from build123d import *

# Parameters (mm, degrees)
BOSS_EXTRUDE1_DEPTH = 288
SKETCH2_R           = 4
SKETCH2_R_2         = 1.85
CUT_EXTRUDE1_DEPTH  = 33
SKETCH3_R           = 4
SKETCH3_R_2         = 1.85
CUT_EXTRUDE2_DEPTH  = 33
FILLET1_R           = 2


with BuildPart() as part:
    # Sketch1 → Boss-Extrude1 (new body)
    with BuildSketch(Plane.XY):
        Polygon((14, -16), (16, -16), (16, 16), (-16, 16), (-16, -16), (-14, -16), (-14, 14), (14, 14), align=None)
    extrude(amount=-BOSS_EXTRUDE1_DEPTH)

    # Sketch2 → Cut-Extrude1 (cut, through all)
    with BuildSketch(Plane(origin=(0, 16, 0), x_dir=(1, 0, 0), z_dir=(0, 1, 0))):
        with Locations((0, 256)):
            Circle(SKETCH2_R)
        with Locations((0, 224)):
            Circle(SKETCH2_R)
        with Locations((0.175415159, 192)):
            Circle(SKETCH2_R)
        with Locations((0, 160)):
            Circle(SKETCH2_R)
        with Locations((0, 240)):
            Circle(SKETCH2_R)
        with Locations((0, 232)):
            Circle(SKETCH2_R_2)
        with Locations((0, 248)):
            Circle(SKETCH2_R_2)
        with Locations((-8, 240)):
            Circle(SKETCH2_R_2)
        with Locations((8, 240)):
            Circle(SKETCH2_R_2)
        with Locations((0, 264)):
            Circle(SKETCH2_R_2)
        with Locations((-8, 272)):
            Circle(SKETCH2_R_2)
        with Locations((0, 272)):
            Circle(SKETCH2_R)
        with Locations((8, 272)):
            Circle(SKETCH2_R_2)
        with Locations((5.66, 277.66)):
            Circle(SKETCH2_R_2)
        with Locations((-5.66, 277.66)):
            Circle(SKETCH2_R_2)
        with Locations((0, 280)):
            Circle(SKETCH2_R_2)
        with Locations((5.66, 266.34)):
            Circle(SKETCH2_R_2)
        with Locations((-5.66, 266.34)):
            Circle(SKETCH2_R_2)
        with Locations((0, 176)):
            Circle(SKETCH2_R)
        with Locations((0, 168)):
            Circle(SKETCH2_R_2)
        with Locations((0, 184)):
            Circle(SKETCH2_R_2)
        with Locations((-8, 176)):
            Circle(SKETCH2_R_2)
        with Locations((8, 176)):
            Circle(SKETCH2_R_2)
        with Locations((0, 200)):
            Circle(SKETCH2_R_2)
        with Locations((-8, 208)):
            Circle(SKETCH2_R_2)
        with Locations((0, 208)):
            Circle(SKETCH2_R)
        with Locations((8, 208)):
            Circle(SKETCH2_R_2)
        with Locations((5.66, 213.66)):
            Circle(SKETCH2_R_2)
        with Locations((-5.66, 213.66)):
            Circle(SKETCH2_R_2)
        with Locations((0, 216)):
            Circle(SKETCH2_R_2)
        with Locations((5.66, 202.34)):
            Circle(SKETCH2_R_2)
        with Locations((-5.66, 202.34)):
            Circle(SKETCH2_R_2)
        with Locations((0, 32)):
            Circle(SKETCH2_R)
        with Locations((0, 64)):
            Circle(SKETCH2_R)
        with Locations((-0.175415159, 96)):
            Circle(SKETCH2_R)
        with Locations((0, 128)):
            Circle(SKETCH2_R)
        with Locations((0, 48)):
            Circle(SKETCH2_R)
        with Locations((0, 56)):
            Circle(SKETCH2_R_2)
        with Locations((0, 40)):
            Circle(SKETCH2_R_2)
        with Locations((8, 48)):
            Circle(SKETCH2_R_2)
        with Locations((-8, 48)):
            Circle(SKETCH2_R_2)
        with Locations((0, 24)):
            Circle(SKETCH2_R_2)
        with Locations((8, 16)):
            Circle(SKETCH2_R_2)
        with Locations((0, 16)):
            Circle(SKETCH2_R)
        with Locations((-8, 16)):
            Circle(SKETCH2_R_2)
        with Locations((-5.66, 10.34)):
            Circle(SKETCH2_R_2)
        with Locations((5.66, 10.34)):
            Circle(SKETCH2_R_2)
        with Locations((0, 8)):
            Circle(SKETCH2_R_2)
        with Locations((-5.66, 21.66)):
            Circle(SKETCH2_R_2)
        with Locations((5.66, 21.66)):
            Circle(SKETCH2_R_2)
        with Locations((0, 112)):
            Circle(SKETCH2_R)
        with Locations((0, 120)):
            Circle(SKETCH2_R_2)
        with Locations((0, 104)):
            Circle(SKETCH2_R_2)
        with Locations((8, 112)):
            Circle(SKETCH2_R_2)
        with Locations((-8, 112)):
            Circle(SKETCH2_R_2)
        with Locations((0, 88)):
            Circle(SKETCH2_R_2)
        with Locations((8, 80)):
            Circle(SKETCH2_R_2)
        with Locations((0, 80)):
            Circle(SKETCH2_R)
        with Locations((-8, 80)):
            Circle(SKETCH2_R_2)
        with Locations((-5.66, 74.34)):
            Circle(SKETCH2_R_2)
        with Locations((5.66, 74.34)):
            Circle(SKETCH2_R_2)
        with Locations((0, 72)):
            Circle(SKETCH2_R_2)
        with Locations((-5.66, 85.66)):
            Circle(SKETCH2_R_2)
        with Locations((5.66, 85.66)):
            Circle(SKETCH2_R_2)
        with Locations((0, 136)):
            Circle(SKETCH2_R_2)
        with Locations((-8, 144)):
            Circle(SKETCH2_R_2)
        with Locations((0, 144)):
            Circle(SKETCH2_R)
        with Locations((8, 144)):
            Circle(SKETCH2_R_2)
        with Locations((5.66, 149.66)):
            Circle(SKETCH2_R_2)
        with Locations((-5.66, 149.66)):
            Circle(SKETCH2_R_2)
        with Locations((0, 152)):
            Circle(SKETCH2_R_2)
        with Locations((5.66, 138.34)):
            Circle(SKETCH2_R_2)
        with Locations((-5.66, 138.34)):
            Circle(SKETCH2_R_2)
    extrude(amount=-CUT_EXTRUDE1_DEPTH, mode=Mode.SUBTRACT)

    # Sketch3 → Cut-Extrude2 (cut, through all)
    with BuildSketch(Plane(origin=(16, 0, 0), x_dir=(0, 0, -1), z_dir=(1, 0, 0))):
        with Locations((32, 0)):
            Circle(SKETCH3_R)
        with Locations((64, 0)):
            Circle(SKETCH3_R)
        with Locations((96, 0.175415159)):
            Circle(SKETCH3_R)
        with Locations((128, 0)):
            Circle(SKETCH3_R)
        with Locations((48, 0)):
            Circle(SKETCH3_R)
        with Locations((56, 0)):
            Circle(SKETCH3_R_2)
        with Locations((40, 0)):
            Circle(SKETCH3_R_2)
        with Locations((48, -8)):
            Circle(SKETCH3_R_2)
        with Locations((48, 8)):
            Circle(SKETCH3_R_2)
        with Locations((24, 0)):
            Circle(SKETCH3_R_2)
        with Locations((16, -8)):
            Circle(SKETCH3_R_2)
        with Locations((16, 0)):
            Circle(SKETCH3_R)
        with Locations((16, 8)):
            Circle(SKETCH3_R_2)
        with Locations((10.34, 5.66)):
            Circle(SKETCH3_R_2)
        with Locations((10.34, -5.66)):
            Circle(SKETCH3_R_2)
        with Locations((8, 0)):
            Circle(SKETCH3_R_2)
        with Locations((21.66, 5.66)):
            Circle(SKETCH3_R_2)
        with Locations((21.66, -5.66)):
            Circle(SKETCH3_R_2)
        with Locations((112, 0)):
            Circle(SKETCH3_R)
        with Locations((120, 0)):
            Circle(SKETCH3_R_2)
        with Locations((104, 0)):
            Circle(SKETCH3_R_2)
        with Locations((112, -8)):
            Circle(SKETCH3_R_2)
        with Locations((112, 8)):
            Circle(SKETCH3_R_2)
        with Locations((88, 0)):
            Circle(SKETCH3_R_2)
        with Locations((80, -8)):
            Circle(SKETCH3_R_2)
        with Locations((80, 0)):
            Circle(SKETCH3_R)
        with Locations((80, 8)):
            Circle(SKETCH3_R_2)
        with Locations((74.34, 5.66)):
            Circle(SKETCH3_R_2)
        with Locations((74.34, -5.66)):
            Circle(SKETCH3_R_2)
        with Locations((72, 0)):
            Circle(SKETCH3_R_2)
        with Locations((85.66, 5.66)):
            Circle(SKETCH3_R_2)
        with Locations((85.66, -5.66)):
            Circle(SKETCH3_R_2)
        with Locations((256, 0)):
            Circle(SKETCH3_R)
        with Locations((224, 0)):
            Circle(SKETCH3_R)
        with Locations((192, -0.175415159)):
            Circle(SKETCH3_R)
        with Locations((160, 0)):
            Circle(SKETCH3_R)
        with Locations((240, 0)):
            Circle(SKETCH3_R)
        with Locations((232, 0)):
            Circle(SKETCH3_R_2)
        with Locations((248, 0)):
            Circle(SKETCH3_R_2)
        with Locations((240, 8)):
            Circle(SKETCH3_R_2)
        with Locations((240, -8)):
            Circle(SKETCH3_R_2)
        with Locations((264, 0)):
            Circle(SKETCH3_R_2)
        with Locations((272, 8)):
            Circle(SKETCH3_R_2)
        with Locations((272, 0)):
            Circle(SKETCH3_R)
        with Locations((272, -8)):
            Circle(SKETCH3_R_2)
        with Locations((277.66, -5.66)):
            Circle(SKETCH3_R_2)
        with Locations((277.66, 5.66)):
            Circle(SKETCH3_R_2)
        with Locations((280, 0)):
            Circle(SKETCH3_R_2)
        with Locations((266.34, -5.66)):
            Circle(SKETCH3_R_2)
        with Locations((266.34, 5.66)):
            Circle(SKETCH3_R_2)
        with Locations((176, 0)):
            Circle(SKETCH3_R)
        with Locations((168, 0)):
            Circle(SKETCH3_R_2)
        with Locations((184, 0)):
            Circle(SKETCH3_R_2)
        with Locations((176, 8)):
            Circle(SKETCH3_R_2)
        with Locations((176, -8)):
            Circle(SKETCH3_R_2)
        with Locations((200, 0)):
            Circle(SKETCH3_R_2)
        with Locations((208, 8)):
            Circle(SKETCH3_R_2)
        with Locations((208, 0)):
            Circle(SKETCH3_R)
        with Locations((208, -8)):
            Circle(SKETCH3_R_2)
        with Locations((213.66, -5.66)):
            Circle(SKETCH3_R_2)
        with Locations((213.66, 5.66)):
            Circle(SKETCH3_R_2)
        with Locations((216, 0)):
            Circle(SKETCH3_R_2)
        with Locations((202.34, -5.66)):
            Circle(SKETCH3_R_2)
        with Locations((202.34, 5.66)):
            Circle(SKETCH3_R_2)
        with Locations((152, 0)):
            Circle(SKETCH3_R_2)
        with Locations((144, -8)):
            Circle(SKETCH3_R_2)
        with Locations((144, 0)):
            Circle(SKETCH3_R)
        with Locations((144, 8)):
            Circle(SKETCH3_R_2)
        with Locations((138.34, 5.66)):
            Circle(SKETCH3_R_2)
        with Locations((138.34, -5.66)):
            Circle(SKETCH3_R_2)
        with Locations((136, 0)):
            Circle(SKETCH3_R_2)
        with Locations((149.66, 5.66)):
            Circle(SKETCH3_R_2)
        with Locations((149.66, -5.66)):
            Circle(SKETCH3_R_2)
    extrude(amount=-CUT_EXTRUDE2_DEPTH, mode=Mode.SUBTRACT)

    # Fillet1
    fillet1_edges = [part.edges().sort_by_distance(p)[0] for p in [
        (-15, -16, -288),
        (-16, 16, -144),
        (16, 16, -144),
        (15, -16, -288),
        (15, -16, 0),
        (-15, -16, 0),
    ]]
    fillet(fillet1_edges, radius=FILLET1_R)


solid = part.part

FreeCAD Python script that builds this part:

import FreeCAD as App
import Part
import Sketcher
from FreeCAD import Vector


def edges_at(feature, points):
    """Names of the edges that pass closest to the given points."""
    edges = feature.Shape.Edges
    near = lambda p: min(range(len(edges)), key=lambda i: edges[i].distToShape(Part.Vertex(*p))[0])
    return sorted({f"Edge{near(p) + 1}" for p in points})


def add_polygon(sketch, points):
    """Adds a closed chain of lines whose ends are joined by coincident constraints."""
    first, n = sketch.GeometryCount, len(points)
    for a, b in zip(points, points[1:] + points[:1]):
        sketch.addGeometry(Part.LineSegment(App.Vector(*a, 0), App.Vector(*b, 0)), False)
    for i in range(n):
        sketch.addConstraint(Sketcher.Constraint("Coincident", first + i, 2, first + (i + 1) % n, 1))

doc = App.newDocument("Part")
body = doc.addObject("PartDesign::Body", "Body")

# Sketch on XY plane
sketch1 = body.newObject("Sketcher::SketchObject", "Sketch")
sketch1.AttachmentSupport = (doc.getObject("XY_Plane"), [""])
sketch1.MapMode = "FlatFace"
add_polygon(sketch1, [(14, -16), (16, -16), (16, 16), (-16, 16), (-16, -16), (-14, -16), (-14, 14), (14, 14)])  # lines 0-7
sketch1.addConstraint(Sketcher.Constraint("Horizontal", 0))
sketch1.addConstraint(Sketcher.Constraint("Vertical", 1))
sketch1.addConstraint(Sketcher.Constraint("Horizontal", 2))
sketch1.addConstraint(Sketcher.Constraint("Vertical", 3))
sketch1.addConstraint(Sketcher.Constraint("Horizontal", 4))
sketch1.addConstraint(Sketcher.Constraint("Vertical", 5))
sketch1.addConstraint(Sketcher.Constraint("Horizontal", 6))
sketch1.addConstraint(Sketcher.Constraint("Vertical", 7))
sketch1.addConstraint(Sketcher.Constraint("Symmetric", 0, 2, 2, 2, -1, 1))
sketch1.addConstraint(Sketcher.Constraint("Symmetric", 4, 2, 7, 2, -2))
sketch1.addConstraint(Sketcher.Constraint("Equal", 2, 1))
sketch1.addConstraint(Sketcher.Constraint("DistanceX", 0, 1, 0, 2, 2.0))
sketch1.addConstraint(Sketcher.Constraint("DistanceX", 2, 2, 2, 1, 32.0))
sketch1.addConstraint(Sketcher.Constraint("DistanceY", 5, 1, 5, 2, 30.0))
pad1 = body.newObject("PartDesign::Pad", "Pad")
pad1.Profile = sketch1
pad1.Length = 288
pad1.Reversed = True

# Sketch on XZ plane
sketch2 = body.newObject("Sketcher::SketchObject", "Sketch001")
sketch2.AttachmentSupport = (doc.getObject("XZ_Plane"), [""])
sketch2.MapMode = "FlatFace"
sketch2.AttachmentOffset = App.Placement(Vector(0, 0, -16), App.Rotation())
sketch2.addGeometry(Part.Circle(Vector(0, -256, 0), Vector(0, 0, 1), 4), False)
sketch2.addGeometry(Part.Circle(Vector(0, -224, 0), Vector(0, 0, 1), 4), False)
sketch2.addGeometry(Part.Circle(Vector(0.2, -192, 0), Vector(0, 0, 1), 4), False)
sketch2.addGeometry(Part.Circle(Vector(0, -160, 0), Vector(0, 0, 1), 4), False)
sketch2.addGeometry(Part.Circle(Vector(0, -240, 0), Vector(0, 0, 1), 4), False)
sketch2.addGeometry(Part.Circle(Vector(0, -232, 0), Vector(0, 0, 1), 1.9), False)
sketch2.addGeometry(Part.Circle(Vector(0, -248, 0), Vector(0, 0, 1), 1.9), False)
sketch2.addGeometry(Part.Circle(Vector(-8, -240, 0), Vector(0, 0, 1), 1.9), False)
sketch2.addGeometry(Part.Circle(Vector(8, -240, 0), Vector(0, 0, 1), 1.9), False)
sketch2.addGeometry(Part.Circle(Vector(0, -264, 0), Vector(0, 0, 1), 1.9), False)
sketch2.addGeometry(Part.Circle(Vector(-8, -272, 0), Vector(0, 0, 1), 1.9), False)
sketch2.addGeometry(Part.Circle(Vector(0, -272, 0), Vector(0, 0, 1), 4), False)
sketch2.addGeometry(Part.Circle(Vector(8, -272, 0), Vector(0, 0, 1), 1.9), False)
sketch2.addGeometry(Part.Circle(Vector(5.7, -277.7, 0), Vector(0, 0, 1), 1.9), False)
sketch2.addGeometry(Part.Circle(Vector(-5.7, -277.7, 0), Vector(0, 0, 1), 1.9), False)
sketch2.addGeometry(Part.Circle(Vector(0, -280, 0), Vector(0, 0, 1), 1.9), False)
sketch2.addGeometry(Part.Circle(Vector(5.7, -266.3, 0), Vector(0, 0, 1), 1.9), False)
sketch2.addGeometry(Part.Circle(Vector(-5.7, -266.3, 0), Vector(0, 0, 1), 1.9), False)
sketch2.addGeometry(Part.Circle(Vector(0, -176, 0), Vector(0, 0, 1), 4), False)
sketch2.addGeometry(Part.Circle(Vector(0, -168, 0), Vector(0, 0, 1), 1.9), False)
sketch2.addGeometry(Part.Circle(Vector(0, -184, 0), Vector(0, 0, 1), 1.9), False)
sketch2.addGeometry(Part.Circle(Vector(-8, -176, 0), Vector(0, 0, 1), 1.9), False)
sketch2.addGeometry(Part.Circle(Vector(8, -176, 0), Vector(0, 0, 1), 1.9), False)
sketch2.addGeometry(Part.Circle(Vector(0, -200, 0), Vector(0, 0, 1), 1.9), False)
sketch2.addGeometry(Part.Circle(Vector(-8, -208, 0), Vector(0, 0, 1), 1.9), False)
sketch2.addGeometry(Part.Circle(Vector(0, -208, 0), Vector(0, 0, 1), 4), False)
sketch2.addGeometry(Part.Circle(Vector(8, -208, 0), Vector(0, 0, 1), 1.9), False)
sketch2.addGeometry(Part.Circle(Vector(5.7, -213.7, 0), Vector(0, 0, 1), 1.9), False)
sketch2.addGeometry(Part.Circle(Vector(-5.7, -213.7, 0), Vector(0, 0, 1), 1.9), False)
sketch2.addGeometry(Part.Circle(Vector(0, -216, 0), Vector(0, 0, 1), 1.9), False)
sketch2.addGeometry(Part.Circle(Vector(5.7, -202.3, 0), Vector(0, 0, 1), 1.9), False)
sketch2.addGeometry(Part.Circle(Vector(-5.7, -202.3, 0), Vector(0, 0, 1), 1.9), False)
sketch2.addGeometry(Part.Circle(Vector(0, -32, 0), Vector(0, 0, 1), 4), False)
sketch2.addGeometry(Part.Circle(Vector(0, -64, 0), Vector(0, 0, 1), 4), False)
sketch2.addGeometry(Part.Circle(Vector(-0.2, -96, 0), Vector(0, 0, 1), 4), False)
sketch2.addGeometry(Part.Circle(Vector(0, -128, 0), Vector(0, 0, 1), 4), False)
sketch2.addGeometry(Part.Circle(Vector(0, -48, 0), Vector(0, 0, 1), 4), False)
sketch2.addGeometry(Part.Circle(Vector(0, -56, 0), Vector(0, 0, 1), 1.9), False)
sketch2.addGeometry(Part.Circle(Vector(0, -40, 0), Vector(0, 0, 1), 1.9), False)
sketch2.addGeometry(Part.Circle(Vector(8, -48, 0), Vector(0, 0, 1), 1.9), False)
sketch2.addGeometry(Part.Circle(Vector(-8, -48, 0), Vector(0, 0, 1), 1.9), False)
sketch2.addGeometry(Part.Circle(Vector(0, -24, 0), Vector(0, 0, 1), 1.9), False)
sketch2.addGeometry(Part.Circle(Vector(8, -16, 0), Vector(0, 0, 1), 1.9), False)
sketch2.addGeometry(Part.Circle(Vector(0, -16, 0), Vector(0, 0, 1), 4), False)
sketch2.addGeometry(Part.Circle(Vector(-8, -16, 0), Vector(0, 0, 1), 1.9), False)
sketch2.addGeometry(Part.Circle(Vector(-5.7, -10.3, 0), Vector(0, 0, 1), 1.9), False)
sketch2.addGeometry(Part.Circle(Vector(5.7, -10.3, 0), Vector(0, 0, 1), 1.9), False)
sketch2.addGeometry(Part.Circle(Vector(0, -8, 0), Vector(0, 0, 1), 1.9), False)
sketch2.addGeometry(Part.Circle(Vector(-5.7, -21.7, 0), Vector(0, 0, 1), 1.9), False)
sketch2.addGeometry(Part.Circle(Vector(5.7, -21.7, 0), Vector(0, 0, 1), 1.9), False)
sketch2.addGeometry(Part.Circle(Vector(0, -112, 0), Vector(0, 0, 1), 4), False)
sketch2.addGeometry(Part.Circle(Vector(0, -120, 0), Vector(0, 0, 1), 1.9), False)
sketch2.addGeometry(Part.Circle(Vector(0, -104, 0), Vector(0, 0, 1), 1.9), False)
sketch2.addGeometry(Part.Circle(Vector(8, -112, 0), Vector(0, 0, 1), 1.9), False)
sketch2.addGeometry(Part.Circle(Vector(-8, -112, 0), Vector(0, 0, 1), 1.9), False)
sketch2.addGeometry(Part.Circle(Vector(0, -88, 0), Vector(0, 0, 1), 1.9), False)
sketch2.addGeometry(Part.Circle(Vector(8, -80, 0), Vector(0, 0, 1), 1.9), False)
sketch2.addGeometry(Part.Circle(Vector(0, -80, 0), Vector(0, 0, 1), 4), False)
sketch2.addGeometry(Part.Circle(Vector(-8, -80, 0), Vector(0, 0, 1), 1.9), False)
sketch2.addGeometry(Part.Circle(Vector(-5.7, -74.3, 0), Vector(0, 0, 1), 1.9), False)
sketch2.addGeometry(Part.Circle(Vector(5.7, -74.3, 0), Vector(0, 0, 1), 1.9), False)
sketch2.addGeometry(Part.Circle(Vector(0, -72, 0), Vector(0, 0, 1), 1.9), False)
sketch2.addGeometry(Part.Circle(Vector(-5.7, -85.7, 0), Vector(0, 0, 1), 1.9), False)
sketch2.addGeometry(Part.Circle(Vector(5.7, -85.7, 0), Vector(0, 0, 1), 1.9), False)
sketch2.addGeometry(Part.Circle(Vector(0, -136, 0), Vector(0, 0, 1), 1.9), False)
sketch2.addGeometry(Part.Circle(Vector(-8, -144, 0), Vector(0, 0, 1), 1.9), False)
sketch2.addGeometry(Part.Circle(Vector(0, -144, 0), Vector(0, 0, 1), 4), False)
sketch2.addGeometry(Part.Circle(Vector(8, -144, 0), Vector(0, 0, 1), 1.9), False)
sketch2.addGeometry(Part.Circle(Vector(5.7, -149.7, 0), Vector(0, 0, 1), 1.9), False)
sketch2.addGeometry(Part.Circle(Vector(-5.7, -149.7, 0), Vector(0, 0, 1), 1.9), False)
sketch2.addGeometry(Part.Circle(Vector(0, -152, 0), Vector(0, 0, 1), 1.9), False)
sketch2.addGeometry(Part.Circle(Vector(5.7, -138.3, 0), Vector(0, 0, 1), 1.9), False)
sketch2.addGeometry(Part.Circle(Vector(-5.7, -138.3, 0), Vector(0, 0, 1), 1.9), False)
sketch2.addConstraint(Sketcher.Constraint("Equal", 0, 1))
sketch2.addConstraint(Sketcher.Constraint("Equal", 1, 2))
sketch2.addConstraint(Sketcher.Constraint("Equal", 2, 3))
sketch2.addConstraint(Sketcher.Constraint("Equal", 3, 4))
sketch2.addConstraint(Sketcher.Constraint("Equal", 5, 6))
sketch2.addConstraint(Sketcher.Constraint("Equal", 6, 7))
sketch2.addConstraint(Sketcher.Constraint("Equal", 7, 8))
sketch2.addConstraint(Sketcher.Constraint("Equal", 8, 9))
sketch2.addConstraint(Sketcher.Constraint("Equal", 9, 10))
sketch2.addConstraint(Sketcher.Constraint("Equal", 4, 11))
sketch2.addConstraint(Sketcher.Constraint("Equal", 10, 12))
sketch2.addConstraint(Sketcher.Constraint("Equal", 12, 13))
sketch2.addConstraint(Sketcher.Constraint("Equal", 13, 14))
sketch2.addConstraint(Sketcher.Constraint("Equal", 14, 15))
sketch2.addConstraint(Sketcher.Constraint("Equal", 15, 16))
sketch2.addConstraint(Sketcher.Constraint("Equal", 16, 17))
sketch2.addConstraint(Sketcher.Constraint("Equal", 11, 18))
sketch2.addConstraint(Sketcher.Constraint("Equal", 17, 19))
sketch2.addConstraint(Sketcher.Constraint("Equal", 19, 20))
sketch2.addConstraint(Sketcher.Constraint("Equal", 20, 21))
sketch2.addConstraint(Sketcher.Constraint("Equal", 21, 22))
sketch2.addConstraint(Sketcher.Constraint("Equal", 22, 23))
sketch2.addConstraint(Sketcher.Constraint("Equal", 23, 24))
sketch2.addConstraint(Sketcher.Constraint("Equal", 18, 25))
sketch2.addConstraint(Sketcher.Constraint("Equal", 24, 26))
sketch2.addConstraint(Sketcher.Constraint("Equal", 26, 27))
sketch2.addConstraint(Sketcher.Constraint("Equal", 27, 28))
sketch2.addConstraint(Sketcher.Constraint("Equal", 28, 29))
sketch2.addConstraint(Sketcher.Constraint("Equal", 29, 30))
sketch2.addConstraint(Sketcher.Constraint("Equal", 30, 31))
sketch2.addConstraint(Sketcher.Constraint("Equal", 25, 32))
sketch2.addConstraint(Sketcher.Constraint("Equal", 32, 33))
sketch2.addConstraint(Sketcher.Constraint("Equal", 33, 34))
sketch2.addConstraint(Sketcher.Constraint("Equal", 34, 35))
sketch2.addConstraint(Sketcher.Constraint("Equal", 35, 36))
sketch2.addConstraint(Sketcher.Constraint("Equal", 31, 37))
sketch2.addConstraint(Sketcher.Constraint("Equal", 37, 38))
sketch2.addConstraint(Sketcher.Constraint("Equal", 38, 39))
sketch2.addConstraint(Sketcher.Constraint("Equal", 39, 40))
sketch2.addConstraint(Sketcher.Constraint("Equal", 40, 41))
sketch2.addConstraint(Sketcher.Constraint("Equal", 41, 42))
sketch2.addConstraint(Sketcher.Constraint("Equal", 36, 43))
sketch2.addConstraint(Sketcher.Constraint("Equal", 42, 44))
sketch2.addConstraint(Sketcher.Constraint("Equal", 44, 45))
sketch2.addConstraint(Sketcher.Constraint("Equal", 45, 46))
sketch2.addConstraint(Sketcher.Constraint("Equal", 46, 47))
sketch2.addConstraint(Sketcher.Constraint("Equal", 47, 48))
sketch2.addConstraint(Sketcher.Constraint("Equal", 48, 49))
sketch2.addConstraint(Sketcher.Constraint("Equal", 43, 50))
sketch2.addConstraint(Sketcher.Constraint("Equal", 49, 51))
sketch2.addConstraint(Sketcher.Constraint("Equal", 51, 52))
sketch2.addConstraint(Sketcher.Constraint("Equal", 52, 53))
sketch2.addConstraint(Sketcher.Constraint("Equal", 53, 54))
sketch2.addConstraint(Sketcher.Constraint("Equal", 54, 55))
sketch2.addConstraint(Sketcher.Constraint("Equal", 55, 56))
sketch2.addConstraint(Sketcher.Constraint("Equal", 50, 57))
sketch2.addConstraint(Sketcher.Constraint("Equal", 56, 58))
sketch2.addConstraint(Sketcher.Constraint("Equal", 58, 59))
sketch2.addConstraint(Sketcher.Constraint("Equal", 59, 60))
sketch2.addConstraint(Sketcher.Constraint("Equal", 60, 61))
sketch2.addConstraint(Sketcher.Constraint("Equal", 61, 62))
sketch2.addConstraint(Sketcher.Constraint("Equal", 62, 63))
sketch2.addConstraint(Sketcher.Constraint("Equal", 63, 64))
sketch2.addConstraint(Sketcher.Constraint("Equal", 64, 65))
sketch2.addConstraint(Sketcher.Constraint("Equal", 57, 66))
sketch2.addConstraint(Sketcher.Constraint("Equal", 65, 67))
sketch2.addConstraint(Sketcher.Constraint("Equal", 67, 68))
sketch2.addConstraint(Sketcher.Constraint("Equal", 68, 69))
sketch2.addConstraint(Sketcher.Constraint("Equal", 69, 70))
sketch2.addConstraint(Sketcher.Constraint("Equal", 70, 71))
sketch2.addConstraint(Sketcher.Constraint("Equal", 71, 72))
sketch2.addConstraint(Sketcher.Constraint("Symmetric", 7, 3, 8, 3, -2))
sketch2.addConstraint(Sketcher.Constraint("Symmetric", 10, 3, 12, 3, -2))
sketch2.addConstraint(Sketcher.Constraint("Symmetric", 13, 3, 14, 3, -2))
sketch2.addConstraint(Sketcher.Constraint("Symmetric", 16, 3, 17, 3, -2))
sketch2.addConstraint(Sketcher.Constraint("Symmetric", 21, 3, 22, 3, -2))
sketch2.addConstraint(Sketcher.Constraint("Symmetric", 24, 3, 26, 3, -2))
sketch2.addConstraint(Sketcher.Constraint("Symmetric", 27, 3, 28, 3, -2))
sketch2.addConstraint(Sketcher.Constraint("Symmetric", 30, 3, 31, 3, -2))
sketch2.addConstraint(Sketcher.Constraint("Symmetric", 39, 3, 40, 3, -2))
sketch2.addConstraint(Sketcher.Constraint("Symmetric", 42, 3, 44, 3, -2))
sketch2.addConstraint(Sketcher.Constraint("Symmetric", 45, 3, 46, 3, -2))
sketch2.addConstraint(Sketcher.Constraint("Symmetric", 48, 3, 49, 3, -2))
sketch2.addConstraint(Sketcher.Constraint("Symmetric", 53, 3, 54, 3, -2))
sketch2.addConstraint(Sketcher.Constraint("Symmetric", 56, 3, 58, 3, -2))
sketch2.addConstraint(Sketcher.Constraint("Symmetric", 59, 3, 60, 3, -2))
sketch2.addConstraint(Sketcher.Constraint("Symmetric", 62, 3, 63, 3, -2))
sketch2.addConstraint(Sketcher.Constraint("Symmetric", 65, 3, 67, 3, -2))
sketch2.addConstraint(Sketcher.Constraint("Symmetric", 68, 3, 69, 3, -2))
sketch2.addConstraint(Sketcher.Constraint("Symmetric", 71, 3, 72, 3, -2))
sketch2.addConstraint(Sketcher.Constraint("PointOnObject", 0, 3, -2))
sketch2.addConstraint(Sketcher.Constraint("PointOnObject", 1, 3, -2))
sketch2.addConstraint(Sketcher.Constraint("PointOnObject", 3, 3, -2))
sketch2.addConstraint(Sketcher.Constraint("PointOnObject", 4, 3, -2))
sketch2.addConstraint(Sketcher.Constraint("PointOnObject", 5, 3, -2))
sketch2.addConstraint(Sketcher.Constraint("PointOnObject", 6, 3, -2))
sketch2.addConstraint(Sketcher.Constraint("PointOnObject", 9, 3, -2))
sketch2.addConstraint(Sketcher.Constraint("PointOnObject", 11, 3, -2))
sketch2.addConstraint(Sketcher.Constraint("PointOnObject", 15, 3, -2))
sketch2.addConstraint(Sketcher.Constraint("PointOnObject", 18, 3, -2))
sketch2.addConstraint(Sketcher.Constraint("PointOnObject", 19, 3, -2))
sketch2.addConstraint(Sketcher.Constraint("PointOnObject", 20, 3, -2))
sketch2.addConstraint(Sketcher.Constraint("PointOnObject", 23, 3, -2))
sketch2.addConstraint(Sketcher.Constraint("PointOnObject", 25, 3, -2))
sketch2.addConstraint(Sketcher.Constraint("PointOnObject", 29, 3, -2))
sketch2.addConstraint(Sketcher.Constraint("PointOnObject", 32, 3, -2))
sketch2.addConstraint(Sketcher.Constraint("PointOnObject", 33, 3, -2))
sketch2.addConstraint(Sketcher.Constraint("PointOnObject", 35, 3, -2))
sketch2.addConstraint(Sketcher.Constraint("PointOnObject", 36, 3, -2))
sketch2.addConstraint(Sketcher.Constraint("PointOnObject", 37, 3, -2))
sketch2.addConstraint(Sketcher.Constraint("PointOnObject", 38, 3, -2))
sketch2.addConstraint(Sketcher.Constraint("PointOnObject", 41, 3, -2))
sketch2.addConstraint(Sketcher.Constraint("PointOnObject", 43, 3, -2))
sketch2.addConstraint(Sketcher.Constraint("PointOnObject", 47, 3, -2))
sketch2.addConstraint(Sketcher.Constraint("PointOnObject", 50, 3, -2))
sketch2.addConstraint(Sketcher.Constraint("PointOnObject", 51, 3, -2))
sketch2.addConstraint(Sketcher.Constraint("PointOnObject", 52, 3, -2))
sketch2.addConstraint(Sketcher.Constraint("PointOnObject", 55, 3, -2))
sketch2.addConstraint(Sketcher.Constraint("PointOnObject", 57, 3, -2))
sketch2.addConstraint(Sketcher.Constraint("PointOnObject", 61, 3, -2))
sketch2.addConstraint(Sketcher.Constraint("PointOnObject", 64, 3, -2))
sketch2.addConstraint(Sketcher.Constraint("PointOnObject", 66, 3, -2))
sketch2.addConstraint(Sketcher.Constraint("PointOnObject", 70, 3, -2))
sketch2.addConstraint(Sketcher.Constraint("Horizontal", 4, 3, 7, 3))
sketch2.addConstraint(Sketcher.Constraint("Horizontal", 10, 3, 11, 3))
sketch2.addConstraint(Sketcher.Constraint("Horizontal", 18, 3, 21, 3))
sketch2.addConstraint(Sketcher.Constraint("Horizontal", 24, 3, 25, 3))
sketch2.addConstraint(Sketcher.Constraint("Horizontal", 36, 3, 39, 3))
sketch2.addConstraint(Sketcher.Constraint("Horizontal", 42, 3, 43, 3))
sketch2.addConstraint(Sketcher.Constraint("Horizontal", 50, 3, 53, 3))
sketch2.addConstraint(Sketcher.Constraint("Horizontal", 56, 3, 57, 3))
sketch2.addConstraint(Sketcher.Constraint("Horizontal", 65, 3, 66, 3))
sketch2.addConstraint(Sketcher.Constraint("Vertical", 7, 3, 10, 3))
sketch2.addConstraint(Sketcher.Constraint("Vertical", 13, 3, 16, 3))
sketch2.addConstraint(Sketcher.Constraint("Vertical", 10, 3, 21, 3))
sketch2.addConstraint(Sketcher.Constraint("Vertical", 21, 3, 24, 3))
sketch2.addConstraint(Sketcher.Constraint("Vertical", 16, 3, 27, 3))
sketch2.addConstraint(Sketcher.Constraint("Vertical", 27, 3, 30, 3))
sketch2.addConstraint(Sketcher.Constraint("Vertical", 26, 3, 39, 3))
sketch2.addConstraint(Sketcher.Constraint("Vertical", 39, 3, 42, 3))
sketch2.addConstraint(Sketcher.Constraint("Vertical", 31, 3, 45, 3))
sketch2.addConstraint(Sketcher.Constraint("Vertical", 45, 3, 48, 3))
sketch2.addConstraint(Sketcher.Constraint("Vertical", 42, 3, 53, 3))
sketch2.addConstraint(Sketcher.Constraint("Vertical", 53, 3, 56, 3))
sketch2.addConstraint(Sketcher.Constraint("Vertical", 48, 3, 59, 3))
sketch2.addConstraint(Sketcher.Constraint("Vertical", 59, 3, 62, 3))
sketch2.addConstraint(Sketcher.Constraint("Vertical", 58, 3, 65, 3))
sketch2.addConstraint(Sketcher.Constraint("Vertical", 63, 3, 68, 3))
sketch2.addConstraint(Sketcher.Constraint("Vertical", 68, 3, 71, 3))
sketch2.addConstraint(Sketcher.Constraint("Diameter", 0, 8.0))
sketch2.addConstraint(Sketcher.Constraint("Diameter", 5, 3.7))
sketch2.addConstraint(Sketcher.Constraint("DistanceY", 0, 3, -1, 1, 256.0))
sketch2.addConstraint(Sketcher.Constraint("DistanceY", 1, 3, -1, 1, 224.0))
sketch2.addConstraint(Sketcher.Constraint("DistanceY", 2, 3, -1, 1, 192.0))
sketch2.addConstraint(Sketcher.Constraint("DistanceY", 3, 3, -1, 1, 160.0))
sketch2.addConstraint(Sketcher.Constraint("DistanceY", 4, 3, -1, 1, 240.0))
sketch2.addConstraint(Sketcher.Constraint("DistanceY", 5, 3, -1, 1, 232.0))
sketch2.addConstraint(Sketcher.Constraint("DistanceY", 6, 3, -1, 1, 248.0))
sketch2.addConstraint(Sketcher.Constraint("DistanceX", 7, 3, -1, 1, 8.0))
sketch2.addConstraint(Sketcher.Constraint("DistanceY", 9, 3, -1, 1, 264.0))
sketch2.addConstraint(Sketcher.Constraint("DistanceY", 10, 3, -1, 1, 272.0))
sketch2.addConstraint(Sketcher.Constraint("DistanceY", 15, 3, -1, 1, 280.0))
sketch2.addConstraint(Sketcher.Constraint("DistanceY", 18, 3, -1, 1, 176.0))
sketch2.addConstraint(Sketcher.Constraint("DistanceY", 19, 3, -1, 1, 168.0))
sketch2.addConstraint(Sketcher.Constraint("DistanceY", 20, 3, -1, 1, 184.0))
sketch2.addConstraint(Sketcher.Constraint("DistanceY", 23, 3, -1, 1, 200.0))
sketch2.addConstraint(Sketcher.Constraint("DistanceY", 24, 3, -1, 1, 208.0))
sketch2.addConstraint(Sketcher.Constraint("DistanceY", 29, 3, -1, 1, 216.0))
sketch2.addConstraint(Sketcher.Constraint("DistanceY", 32, 3, -1, 1, 32.0))
sketch2.addConstraint(Sketcher.Constraint("DistanceY", 33, 3, -1, 1, 64.0))
sketch2.addConstraint(Sketcher.Constraint("DistanceY", 34, 3, -1, 1, 96.0))
sketch2.addConstraint(Sketcher.Constraint("DistanceY", 35, 3, -1, 1, 128.0))
sketch2.addConstraint(Sketcher.Constraint("DistanceY", 36, 3, -1, 1, 48.0))
sketch2.addConstraint(Sketcher.Constraint("DistanceY", 37, 3, -1, 1, 56.0))
sketch2.addConstraint(Sketcher.Constraint("DistanceY", 38, 3, -1, 1, 40.0))
sketch2.addConstraint(Sketcher.Constraint("DistanceY", 41, 3, -1, 1, 24.0))
sketch2.addConstraint(Sketcher.Constraint("DistanceY", 42, 3, -1, 1, 16.0))
sketch2.addConstraint(Sketcher.Constraint("DistanceY", 47, 3, -1, 1, 8.0))
sketch2.addConstraint(Sketcher.Constraint("DistanceY", 50, 3, -1, 1, 112.0))
sketch2.addConstraint(Sketcher.Constraint("DistanceY", 51, 3, -1, 1, 120.0))
sketch2.addConstraint(Sketcher.Constraint("DistanceY", 52, 3, -1, 1, 104.0))
sketch2.addConstraint(Sketcher.Constraint("DistanceY", 55, 3, -1, 1, 88.0))
sketch2.addConstraint(Sketcher.Constraint("DistanceY", 56, 3, -1, 1, 80.0))
sketch2.addConstraint(Sketcher.Constraint("DistanceY", 61, 3, -1, 1, 72.0))
sketch2.addConstraint(Sketcher.Constraint("DistanceY", 64, 3, -1, 1, 136.0))
sketch2.addConstraint(Sketcher.Constraint("DistanceY", 65, 3, -1, 1, 144.0))
sketch2.addConstraint(Sketcher.Constraint("DistanceY", 70, 3, -1, 1, 152.0))
sketch2.addConstraint(Sketcher.Constraint("DistanceX", -1, 1, 13, 3, 5.66))
sketch2.addConstraint(Sketcher.Constraint("DistanceY", 13, 3, -1, 1, 277.66))
sketch2.addConstraint(Sketcher.Constraint("DistanceY", 16, 3, -1, 1, 266.34))
sketch2.addConstraint(Sketcher.Constraint("DistanceY", 27, 3, -1, 1, 213.66))
sketch2.addConstraint(Sketcher.Constraint("DistanceY", 30, 3, -1, 1, 202.34))
sketch2.addConstraint(Sketcher.Constraint("DistanceY", 45, 3, -1, 1, 10.34))
sketch2.addConstraint(Sketcher.Constraint("DistanceY", 48, 3, -1, 1, 21.66))
sketch2.addConstraint(Sketcher.Constraint("DistanceY", 59, 3, -1, 1, 74.34))
sketch2.addConstraint(Sketcher.Constraint("DistanceY", 62, 3, -1, 1, 85.66))
sketch2.addConstraint(Sketcher.Constraint("DistanceY", 68, 3, -1, 1, 149.66))
sketch2.addConstraint(Sketcher.Constraint("DistanceY", 71, 3, -1, 1, 138.34))
sketch2.addConstraint(Sketcher.Constraint("DistanceX", -1, 1, 2, 3, 0.175415))
sketch2.addConstraint(Sketcher.Constraint("DistanceX", 34, 3, -1, 1, 0.175415))
pocket1 = body.newObject("PartDesign::Pocket", "Pocket")
pocket1.Profile = sketch2
pocket1.Type = "ThroughAll"
pocket1.Reversed = True

# Sketch on YZ plane
sketch3 = body.newObject("Sketcher::SketchObject", "Sketch002")
sketch3.AttachmentSupport = (doc.getObject("YZ_Plane"), [""])
sketch3.MapMode = "FlatFace"
sketch3.AttachmentOffset = App.Placement(Vector(0, 0, 16), App.Rotation())
sketch3.addGeometry(Part.Circle(Vector(0, -32, 0), Vector(0, 0, 1), 4), False)
sketch3.addGeometry(Part.Circle(Vector(0, -64, 0), Vector(0, 0, 1), 4), False)
sketch3.addGeometry(Part.Circle(Vector(0.2, -96, 0), Vector(0, 0, 1), 4), False)
sketch3.addGeometry(Part.Circle(Vector(0, -128, 0), Vector(0, 0, 1), 4), False)
sketch3.addGeometry(Part.Circle(Vector(0, -48, 0), Vector(0, 0, 1), 4), False)
sketch3.addGeometry(Part.Circle(Vector(0, -56, 0), Vector(0, 0, 1), 1.9), False)
sketch3.addGeometry(Part.Circle(Vector(0, -40, 0), Vector(0, 0, 1), 1.9), False)
sketch3.addGeometry(Part.Circle(Vector(-8, -48, 0), Vector(0, 0, 1), 1.9), False)
sketch3.addGeometry(Part.Circle(Vector(8, -48, 0), Vector(0, 0, 1), 1.9), False)
sketch3.addGeometry(Part.Circle(Vector(0, -24, 0), Vector(0, 0, 1), 1.9), False)
sketch3.addGeometry(Part.Circle(Vector(-8, -16, 0), Vector(0, 0, 1), 1.9), False)
sketch3.addGeometry(Part.Circle(Vector(0, -16, 0), Vector(0, 0, 1), 4), False)
sketch3.addGeometry(Part.Circle(Vector(8, -16, 0), Vector(0, 0, 1), 1.9), False)
sketch3.addGeometry(Part.Circle(Vector(5.7, -10.3, 0), Vector(0, 0, 1), 1.9), False)
sketch3.addGeometry(Part.Circle(Vector(-5.7, -10.3, 0), Vector(0, 0, 1), 1.9), False)
sketch3.addGeometry(Part.Circle(Vector(0, -8, 0), Vector(0, 0, 1), 1.9), False)
sketch3.addGeometry(Part.Circle(Vector(5.7, -21.7, 0), Vector(0, 0, 1), 1.9), False)
sketch3.addGeometry(Part.Circle(Vector(-5.7, -21.7, 0), Vector(0, 0, 1), 1.9), False)
sketch3.addGeometry(Part.Circle(Vector(0, -112, 0), Vector(0, 0, 1), 4), False)
sketch3.addGeometry(Part.Circle(Vector(0, -120, 0), Vector(0, 0, 1), 1.9), False)
sketch3.addGeometry(Part.Circle(Vector(0, -104, 0), Vector(0, 0, 1), 1.9), False)
sketch3.addGeometry(Part.Circle(Vector(-8, -112, 0), Vector(0, 0, 1), 1.9), False)
sketch3.addGeometry(Part.Circle(Vector(8, -112, 0), Vector(0, 0, 1), 1.9), False)
sketch3.addGeometry(Part.Circle(Vector(0, -88, 0), Vector(0, 0, 1), 1.9), False)
sketch3.addGeometry(Part.Circle(Vector(-8, -80, 0), Vector(0, 0, 1), 1.9), False)
sketch3.addGeometry(Part.Circle(Vector(0, -80, 0), Vector(0, 0, 1), 4), False)
sketch3.addGeometry(Part.Circle(Vector(8, -80, 0), Vector(0, 0, 1), 1.9), False)
sketch3.addGeometry(Part.Circle(Vector(5.7, -74.3, 0), Vector(0, 0, 1), 1.9), False)
sketch3.addGeometry(Part.Circle(Vector(-5.7, -74.3, 0), Vector(0, 0, 1), 1.9), False)
sketch3.addGeometry(Part.Circle(Vector(0, -72, 0), Vector(0, 0, 1), 1.9), False)
sketch3.addGeometry(Part.Circle(Vector(5.7, -85.7, 0), Vector(0, 0, 1), 1.9), False)
sketch3.addGeometry(Part.Circle(Vector(-5.7, -85.7, 0), Vector(0, 0, 1), 1.9), False)
sketch3.addGeometry(Part.Circle(Vector(0, -256, 0), Vector(0, 0, 1), 4), False)
sketch3.addGeometry(Part.Circle(Vector(0, -224, 0), Vector(0, 0, 1), 4), False)
sketch3.addGeometry(Part.Circle(Vector(-0.2, -192, 0), Vector(0, 0, 1), 4), False)
sketch3.addGeometry(Part.Circle(Vector(0, -160, 0), Vector(0, 0, 1), 4), False)
sketch3.addGeometry(Part.Circle(Vector(0, -240, 0), Vector(0, 0, 1), 4), False)
sketch3.addGeometry(Part.Circle(Vector(0, -232, 0), Vector(0, 0, 1), 1.9), False)
sketch3.addGeometry(Part.Circle(Vector(0, -248, 0), Vector(0, 0, 1), 1.9), False)
sketch3.addGeometry(Part.Circle(Vector(8, -240, 0), Vector(0, 0, 1), 1.9), False)
sketch3.addGeometry(Part.Circle(Vector(-8, -240, 0), Vector(0, 0, 1), 1.9), False)
sketch3.addGeometry(Part.Circle(Vector(0, -264, 0), Vector(0, 0, 1), 1.9), False)
sketch3.addGeometry(Part.Circle(Vector(8, -272, 0), Vector(0, 0, 1), 1.9), False)
sketch3.addGeometry(Part.Circle(Vector(0, -272, 0), Vector(0, 0, 1), 4), False)
sketch3.addGeometry(Part.Circle(Vector(-8, -272, 0), Vector(0, 0, 1), 1.9), False)
sketch3.addGeometry(Part.Circle(Vector(-5.7, -277.7, 0), Vector(0, 0, 1), 1.9), False)
sketch3.addGeometry(Part.Circle(Vector(5.7, -277.7, 0), Vector(0, 0, 1), 1.9), False)
sketch3.addGeometry(Part.Circle(Vector(0, -280, 0), Vector(0, 0, 1), 1.9), False)
sketch3.addGeometry(Part.Circle(Vector(-5.7, -266.3, 0), Vector(0, 0, 1), 1.9), False)
sketch3.addGeometry(Part.Circle(Vector(5.7, -266.3, 0), Vector(0, 0, 1), 1.9), False)
sketch3.addGeometry(Part.Circle(Vector(0, -176, 0), Vector(0, 0, 1), 4), False)
sketch3.addGeometry(Part.Circle(Vector(0, -168, 0), Vector(0, 0, 1), 1.9), False)
sketch3.addGeometry(Part.Circle(Vector(0, -184, 0), Vector(0, 0, 1), 1.9), False)
sketch3.addGeometry(Part.Circle(Vector(8, -176, 0), Vector(0, 0, 1), 1.9), False)
sketch3.addGeometry(Part.Circle(Vector(-8, -176, 0), Vector(0, 0, 1), 1.9), False)
sketch3.addGeometry(Part.Circle(Vector(0, -200, 0), Vector(0, 0, 1), 1.9), False)
sketch3.addGeometry(Part.Circle(Vector(8, -208, 0), Vector(0, 0, 1), 1.9), False)
sketch3.addGeometry(Part.Circle(Vector(0, -208, 0), Vector(0, 0, 1), 4), False)
sketch3.addGeometry(Part.Circle(Vector(-8, -208, 0), Vector(0, 0, 1), 1.9), False)
sketch3.addGeometry(Part.Circle(Vector(-5.7, -213.7, 0), Vector(0, 0, 1), 1.9), False)
sketch3.addGeometry(Part.Circle(Vector(5.7, -213.7, 0), Vector(0, 0, 1), 1.9), False)
sketch3.addGeometry(Part.Circle(Vector(0, -216, 0), Vector(0, 0, 1), 1.9), False)
sketch3.addGeometry(Part.Circle(Vector(-5.7, -202.3, 0), Vector(0, 0, 1), 1.9), False)
sketch3.addGeometry(Part.Circle(Vector(5.7, -202.3, 0), Vector(0, 0, 1), 1.9), False)
sketch3.addGeometry(Part.Circle(Vector(0, -152, 0), Vector(0, 0, 1), 1.9), False)
sketch3.addGeometry(Part.Circle(Vector(-8, -144, 0), Vector(0, 0, 1), 1.9), False)
sketch3.addGeometry(Part.Circle(Vector(0, -144, 0), Vector(0, 0, 1), 4), False)
sketch3.addGeometry(Part.Circle(Vector(8, -144, 0), Vector(0, 0, 1), 1.9), False)
sketch3.addGeometry(Part.Circle(Vector(5.7, -138.3, 0), Vector(0, 0, 1), 1.9), False)
sketch3.addGeometry(Part.Circle(Vector(-5.7, -138.3, 0), Vector(0, 0, 1), 1.9), False)
sketch3.addGeometry(Part.Circle(Vector(0, -136, 0), Vector(0, 0, 1), 1.9), False)
sketch3.addGeometry(Part.Circle(Vector(5.7, -149.7, 0), Vector(0, 0, 1), 1.9), False)
sketch3.addGeometry(Part.Circle(Vector(-5.7, -149.7, 0), Vector(0, 0, 1), 1.9), False)
sketch3.addConstraint(Sketcher.Constraint("Equal", 0, 1))
sketch3.addConstraint(Sketcher.Constraint("Equal", 1, 2))
sketch3.addConstraint(Sketcher.Constraint("Equal", 2, 3))
sketch3.addConstraint(Sketcher.Constraint("Equal", 3, 4))
sketch3.addConstraint(Sketcher.Constraint("Equal", 5, 6))
sketch3.addConstraint(Sketcher.Constraint("Equal", 6, 7))
sketch3.addConstraint(Sketcher.Constraint("Equal", 7, 8))
sketch3.addConstraint(Sketcher.Constraint("Equal", 8, 9))
sketch3.addConstraint(Sketcher.Constraint("Equal", 9, 10))
sketch3.addConstraint(Sketcher.Constraint("Equal", 4, 11))
sketch3.addConstraint(Sketcher.Constraint("Equal", 10, 12))
sketch3.addConstraint(Sketcher.Constraint("Equal", 12, 13))
sketch3.addConstraint(Sketcher.Constraint("Equal", 13, 14))
sketch3.addConstraint(Sketcher.Constraint("Equal", 14, 15))
sketch3.addConstraint(Sketcher.Constraint("Equal", 15, 16))
sketch3.addConstraint(Sketcher.Constraint("Equal", 16, 17))
sketch3.addConstraint(Sketcher.Constraint("Equal", 11, 18))
sketch3.addConstraint(Sketcher.Constraint("Equal", 17, 19))
sketch3.addConstraint(Sketcher.Constraint("Equal", 19, 20))
sketch3.addConstraint(Sketcher.Constraint("Equal", 20, 21))
sketch3.addConstraint(Sketcher.Constraint("Equal", 21, 22))
sketch3.addConstraint(Sketcher.Constraint("Equal", 22, 23))
sketch3.addConstraint(Sketcher.Constraint("Equal", 23, 24))
sketch3.addConstraint(Sketcher.Constraint("Equal", 18, 25))
sketch3.addConstraint(Sketcher.Constraint("Equal", 24, 26))
sketch3.addConstraint(Sketcher.Constraint("Equal", 26, 27))
sketch3.addConstraint(Sketcher.Constraint("Equal", 27, 28))
sketch3.addConstraint(Sketcher.Constraint("Equal", 28, 29))
sketch3.addConstraint(Sketcher.Constraint("Equal", 29, 30))
sketch3.addConstraint(Sketcher.Constraint("Equal", 30, 31))
sketch3.addConstraint(Sketcher.Constraint("Equal", 25, 32))
sketch3.addConstraint(Sketcher.Constraint("Equal", 32, 33))
sketch3.addConstraint(Sketcher.Constraint("Equal", 33, 34))
sketch3.addConstraint(Sketcher.Constraint("Equal", 34, 35))
sketch3.addConstraint(Sketcher.Constraint("Equal", 35, 36))
sketch3.addConstraint(Sketcher.Constraint("Equal", 31, 37))
sketch3.addConstraint(Sketcher.Constraint("Equal", 37, 38))
sketch3.addConstraint(Sketcher.Constraint("Equal", 38, 39))
sketch3.addConstraint(Sketcher.Constraint("Equal", 39, 40))
sketch3.addConstraint(Sketcher.Constraint("Equal", 40, 41))
sketch3.addConstraint(Sketcher.Constraint("Equal", 41, 42))
sketch3.addConstraint(Sketcher.Constraint("Equal", 36, 43))
sketch3.addConstraint(Sketcher.Constraint("Equal", 42, 44))
sketch3.addConstraint(Sketcher.Constraint("Equal", 44, 45))
sketch3.addConstraint(Sketcher.Constraint("Equal", 45, 46))
sketch3.addConstraint(Sketcher.Constraint("Equal", 46, 47))
sketch3.addConstraint(Sketcher.Constraint("Equal", 47, 48))
sketch3.addConstraint(Sketcher.Constraint("Equal", 48, 49))
sketch3.addConstraint(Sketcher.Constraint("Equal", 43, 50))
sketch3.addConstraint(Sketcher.Constraint("Equal", 49, 51))
sketch3.addConstraint(Sketcher.Constraint("Equal", 51, 52))
sketch3.addConstraint(Sketcher.Constraint("Equal", 52, 53))
sketch3.addConstraint(Sketcher.Constraint("Equal", 53, 54))
sketch3.addConstraint(Sketcher.Constraint("Equal", 54, 55))
sketch3.addConstraint(Sketcher.Constraint("Equal", 55, 56))
sketch3.addConstraint(Sketcher.Constraint("Equal", 50, 57))
sketch3.addConstraint(Sketcher.Constraint("Equal", 56, 58))
sketch3.addConstraint(Sketcher.Constraint("Equal", 58, 59))
sketch3.addConstraint(Sketcher.Constraint("Equal", 59, 60))
sketch3.addConstraint(Sketcher.Constraint("Equal", 60, 61))
sketch3.addConstraint(Sketcher.Constraint("Equal", 61, 62))
sketch3.addConstraint(Sketcher.Constraint("Equal", 62, 63))
sketch3.addConstraint(Sketcher.Constraint("Equal", 63, 64))
sketch3.addConstraint(Sketcher.Constraint("Equal", 64, 65))
sketch3.addConstraint(Sketcher.Constraint("Equal", 57, 66))
sketch3.addConstraint(Sketcher.Constraint("Equal", 65, 67))
sketch3.addConstraint(Sketcher.Constraint("Equal", 67, 68))
sketch3.addConstraint(Sketcher.Constraint("Equal", 68, 69))
sketch3.addConstraint(Sketcher.Constraint("Equal", 69, 70))
sketch3.addConstraint(Sketcher.Constraint("Equal", 70, 71))
sketch3.addConstraint(Sketcher.Constraint("Equal", 71, 72))
sketch3.addConstraint(Sketcher.Constraint("Symmetric", 7, 3, 8, 3, -2))
sketch3.addConstraint(Sketcher.Constraint("Symmetric", 10, 3, 12, 3, -2))
sketch3.addConstraint(Sketcher.Constraint("Symmetric", 13, 3, 14, 3, -2))
sketch3.addConstraint(Sketcher.Constraint("Symmetric", 16, 3, 17, 3, -2))
sketch3.addConstraint(Sketcher.Constraint("Symmetric", 21, 3, 22, 3, -2))
sketch3.addConstraint(Sketcher.Constraint("Symmetric", 24, 3, 26, 3, -2))
sketch3.addConstraint(Sketcher.Constraint("Symmetric", 27, 3, 28, 3, -2))
sketch3.addConstraint(Sketcher.Constraint("Symmetric", 30, 3, 31, 3, -2))
sketch3.addConstraint(Sketcher.Constraint("Symmetric", 39, 3, 40, 3, -2))
sketch3.addConstraint(Sketcher.Constraint("Symmetric", 42, 3, 44, 3, -2))
sketch3.addConstraint(Sketcher.Constraint("Symmetric", 45, 3, 46, 3, -2))
sketch3.addConstraint(Sketcher.Constraint("Symmetric", 48, 3, 49, 3, -2))
sketch3.addConstraint(Sketcher.Constraint("Symmetric", 53, 3, 54, 3, -2))
sketch3.addConstraint(Sketcher.Constraint("Symmetric", 56, 3, 58, 3, -2))
sketch3.addConstraint(Sketcher.Constraint("Symmetric", 59, 3, 60, 3, -2))
sketch3.addConstraint(Sketcher.Constraint("Symmetric", 62, 3, 63, 3, -2))
sketch3.addConstraint(Sketcher.Constraint("Symmetric", 65, 3, 67, 3, -2))
sketch3.addConstraint(Sketcher.Constraint("Symmetric", 68, 3, 69, 3, -2))
sketch3.addConstraint(Sketcher.Constraint("Symmetric", 71, 3, 72, 3, -2))
sketch3.addConstraint(Sketcher.Constraint("PointOnObject", 0, 3, -2))
sketch3.addConstraint(Sketcher.Constraint("PointOnObject", 1, 3, -2))
sketch3.addConstraint(Sketcher.Constraint("PointOnObject", 3, 3, -2))
sketch3.addConstraint(Sketcher.Constraint("PointOnObject", 4, 3, -2))
sketch3.addConstraint(Sketcher.Constraint("PointOnObject", 5, 3, -2))
sketch3.addConstraint(Sketcher.Constraint("PointOnObject", 6, 3, -2))
sketch3.addConstraint(Sketcher.Constraint("PointOnObject", 9, 3, -2))
sketch3.addConstraint(Sketcher.Constraint("PointOnObject", 11, 3, -2))
sketch3.addConstraint(Sketcher.Constraint("PointOnObject", 15, 3, -2))
sketch3.addConstraint(Sketcher.Constraint("PointOnObject", 18, 3, -2))
sketch3.addConstraint(Sketcher.Constraint("PointOnObject", 19, 3, -2))
sketch3.addConstraint(Sketcher.Constraint("PointOnObject", 20, 3, -2))
sketch3.addConstraint(Sketcher.Constraint("PointOnObject", 23, 3, -2))
sketch3.addConstraint(Sketcher.Constraint("PointOnObject", 25, 3, -2))
sketch3.addConstraint(Sketcher.Constraint("PointOnObject", 29, 3, -2))
sketch3.addConstraint(Sketcher.Constraint("PointOnObject", 32, 3, -2))
sketch3.addConstraint(Sketcher.Constraint("PointOnObject", 33, 3, -2))
sketch3.addConstraint(Sketcher.Constraint("PointOnObject", 35, 3, -2))
sketch3.addConstraint(Sketcher.Constraint("PointOnObject", 36, 3, -2))
sketch3.addConstraint(Sketcher.Constraint("PointOnObject", 37, 3, -2))
sketch3.addConstraint(Sketcher.Constraint("PointOnObject", 38, 3, -2))
sketch3.addConstraint(Sketcher.Constraint("PointOnObject", 41, 3, -2))
sketch3.addConstraint(Sketcher.Constraint("PointOnObject", 43, 3, -2))
sketch3.addConstraint(Sketcher.Constraint("PointOnObject", 47, 3, -2))
sketch3.addConstraint(Sketcher.Constraint("PointOnObject", 50, 3, -2))
sketch3.addConstraint(Sketcher.Constraint("PointOnObject", 51, 3, -2))
sketch3.addConstraint(Sketcher.Constraint("PointOnObject", 52, 3, -2))
sketch3.addConstraint(Sketcher.Constraint("PointOnObject", 55, 3, -2))
sketch3.addConstraint(Sketcher.Constraint("PointOnObject", 57, 3, -2))
sketch3.addConstraint(Sketcher.Constraint("PointOnObject", 61, 3, -2))
sketch3.addConstraint(Sketcher.Constraint("PointOnObject", 64, 3, -2))
sketch3.addConstraint(Sketcher.Constraint("PointOnObject", 66, 3, -2))
sketch3.addConstraint(Sketcher.Constraint("PointOnObject", 70, 3, -2))
sketch3.addConstraint(Sketcher.Constraint("Horizontal", 4, 3, 7, 3))
sketch3.addConstraint(Sketcher.Constraint("Horizontal", 10, 3, 11, 3))
sketch3.addConstraint(Sketcher.Constraint("Horizontal", 18, 3, 21, 3))
sketch3.addConstraint(Sketcher.Constraint("Horizontal", 24, 3, 25, 3))
sketch3.addConstraint(Sketcher.Constraint("Horizontal", 36, 3, 39, 3))
sketch3.addConstraint(Sketcher.Constraint("Horizontal", 42, 3, 43, 3))
sketch3.addConstraint(Sketcher.Constraint("Horizontal", 50, 3, 53, 3))
sketch3.addConstraint(Sketcher.Constraint("Horizontal", 56, 3, 57, 3))
sketch3.addConstraint(Sketcher.Constraint("Horizontal", 65, 3, 66, 3))
sketch3.addConstraint(Sketcher.Constraint("Vertical", 7, 3, 10, 3))
sketch3.addConstraint(Sketcher.Constraint("Vertical", 13, 3, 16, 3))
sketch3.addConstraint(Sketcher.Constraint("Vertical", 10, 3, 21, 3))
sketch3.addConstraint(Sketcher.Constraint("Vertical", 21, 3, 24, 3))
sketch3.addConstraint(Sketcher.Constraint("Vertical", 16, 3, 27, 3))
sketch3.addConstraint(Sketcher.Constraint("Vertical", 27, 3, 30, 3))
sketch3.addConstraint(Sketcher.Constraint("Vertical", 26, 3, 39, 3))
sketch3.addConstraint(Sketcher.Constraint("Vertical", 39, 3, 42, 3))
sketch3.addConstraint(Sketcher.Constraint("Vertical", 31, 3, 45, 3))
sketch3.addConstraint(Sketcher.Constraint("Vertical", 45, 3, 48, 3))
sketch3.addConstraint(Sketcher.Constraint("Vertical", 42, 3, 53, 3))
sketch3.addConstraint(Sketcher.Constraint("Vertical", 53, 3, 56, 3))
sketch3.addConstraint(Sketcher.Constraint("Vertical", 48, 3, 59, 3))
sketch3.addConstraint(Sketcher.Constraint("Vertical", 59, 3, 62, 3))
sketch3.addConstraint(Sketcher.Constraint("Vertical", 58, 3, 65, 3))
sketch3.addConstraint(Sketcher.Constraint("Vertical", 63, 3, 68, 3))
sketch3.addConstraint(Sketcher.Constraint("Vertical", 68, 3, 71, 3))
sketch3.addConstraint(Sketcher.Constraint("Diameter", 0, 8.0))
sketch3.addConstraint(Sketcher.Constraint("Diameter", 5, 3.7))
sketch3.addConstraint(Sketcher.Constraint("DistanceY", 0, 3, -1, 1, 32.0))
sketch3.addConstraint(Sketcher.Constraint("DistanceY", 1, 3, -1, 1, 64.0))
sketch3.addConstraint(Sketcher.Constraint("DistanceY", 2, 3, -1, 1, 96.0))
sketch3.addConstraint(Sketcher.Constraint("DistanceY", 3, 3, -1, 1, 128.0))
sketch3.addConstraint(Sketcher.Constraint("DistanceY", 4, 3, -1, 1, 48.0))
sketch3.addConstraint(Sketcher.Constraint("DistanceY", 5, 3, -1, 1, 56.0))
sketch3.addConstraint(Sketcher.Constraint("DistanceY", 6, 3, -1, 1, 40.0))
sketch3.addConstraint(Sketcher.Constraint("DistanceX", 7, 3, -1, 1, 8.0))
sketch3.addConstraint(Sketcher.Constraint("DistanceY", 9, 3, -1, 1, 24.0))
sketch3.addConstraint(Sketcher.Constraint("DistanceY", 10, 3, -1, 1, 16.0))
sketch3.addConstraint(Sketcher.Constraint("DistanceY", 15, 3, -1, 1, 8.0))
sketch3.addConstraint(Sketcher.Constraint("DistanceY", 18, 3, -1, 1, 112.0))
sketch3.addConstraint(Sketcher.Constraint("DistanceY", 19, 3, -1, 1, 120.0))
sketch3.addConstraint(Sketcher.Constraint("DistanceY", 20, 3, -1, 1, 104.0))
sketch3.addConstraint(Sketcher.Constraint("DistanceY", 23, 3, -1, 1, 88.0))
sketch3.addConstraint(Sketcher.Constraint("DistanceY", 24, 3, -1, 1, 80.0))
sketch3.addConstraint(Sketcher.Constraint("DistanceY", 29, 3, -1, 1, 72.0))
sketch3.addConstraint(Sketcher.Constraint("DistanceY", 32, 3, -1, 1, 256.0))
sketch3.addConstraint(Sketcher.Constraint("DistanceY", 33, 3, -1, 1, 224.0))
sketch3.addConstraint(Sketcher.Constraint("DistanceY", 34, 3, -1, 1, 192.0))
sketch3.addConstraint(Sketcher.Constraint("DistanceY", 35, 3, -1, 1, 160.0))
sketch3.addConstraint(Sketcher.Constraint("DistanceY", 36, 3, -1, 1, 240.0))
sketch3.addConstraint(Sketcher.Constraint("DistanceY", 37, 3, -1, 1, 232.0))
sketch3.addConstraint(Sketcher.Constraint("DistanceY", 38, 3, -1, 1, 248.0))
sketch3.addConstraint(Sketcher.Constraint("DistanceY", 41, 3, -1, 1, 264.0))
sketch3.addConstraint(Sketcher.Constraint("DistanceY", 42, 3, -1, 1, 272.0))
sketch3.addConstraint(Sketcher.Constraint("DistanceY", 47, 3, -1, 1, 280.0))
sketch3.addConstraint(Sketcher.Constraint("DistanceY", 50, 3, -1, 1, 176.0))
sketch3.addConstraint(Sketcher.Constraint("DistanceY", 51, 3, -1, 1, 168.0))
sketch3.addConstraint(Sketcher.Constraint("DistanceY", 52, 3, -1, 1, 184.0))
sketch3.addConstraint(Sketcher.Constraint("DistanceY", 55, 3, -1, 1, 200.0))
sketch3.addConstraint(Sketcher.Constraint("DistanceY", 56, 3, -1, 1, 208.0))
sketch3.addConstraint(Sketcher.Constraint("DistanceY", 61, 3, -1, 1, 216.0))
sketch3.addConstraint(Sketcher.Constraint("DistanceY", 64, 3, -1, 1, 152.0))
sketch3.addConstraint(Sketcher.Constraint("DistanceY", 65, 3, -1, 1, 144.0))
sketch3.addConstraint(Sketcher.Constraint("DistanceY", 70, 3, -1, 1, 136.0))
sketch3.addConstraint(Sketcher.Constraint("DistanceX", -1, 1, 13, 3, 5.66))
sketch3.addConstraint(Sketcher.Constraint("DistanceY", 13, 3, -1, 1, 10.34))
sketch3.addConstraint(Sketcher.Constraint("DistanceY", 16, 3, -1, 1, 21.66))
sketch3.addConstraint(Sketcher.Constraint("DistanceY", 27, 3, -1, 1, 74.34))
sketch3.addConstraint(Sketcher.Constraint("DistanceY", 30, 3, -1, 1, 85.66))
sketch3.addConstraint(Sketcher.Constraint("DistanceY", 45, 3, -1, 1, 277.66))
sketch3.addConstraint(Sketcher.Constraint("DistanceY", 48, 3, -1, 1, 266.34))
sketch3.addConstraint(Sketcher.Constraint("DistanceY", 59, 3, -1, 1, 213.66))
sketch3.addConstraint(Sketcher.Constraint("DistanceY", 62, 3, -1, 1, 202.34))
sketch3.addConstraint(Sketcher.Constraint("DistanceY", 68, 3, -1, 1, 138.34))
sketch3.addConstraint(Sketcher.Constraint("DistanceY", 71, 3, -1, 1, 149.66))
sketch3.addConstraint(Sketcher.Constraint("DistanceX", -1, 1, 2, 3, 0.175415))
sketch3.addConstraint(Sketcher.Constraint("DistanceX", 34, 3, -1, 1, 0.175415))
pocket2 = body.newObject("PartDesign::Pocket", "Pocket001")
pocket2.Profile = sketch3
pocket2.Type = "ThroughAll"
doc.recompute()

fillet = body.newObject("PartDesign::Fillet", "Fillet")
fillet.Base = (pocket2, edges_at(pocket2, [
    (-15, -16, -288),
    (-16, 16, -144),
    (16, 16, -144),
    (15, -16, -288),
    (15, -16, 0),
    (-15, -16, 0),
]))
fillet.Radius = 2

doc.recompute()
